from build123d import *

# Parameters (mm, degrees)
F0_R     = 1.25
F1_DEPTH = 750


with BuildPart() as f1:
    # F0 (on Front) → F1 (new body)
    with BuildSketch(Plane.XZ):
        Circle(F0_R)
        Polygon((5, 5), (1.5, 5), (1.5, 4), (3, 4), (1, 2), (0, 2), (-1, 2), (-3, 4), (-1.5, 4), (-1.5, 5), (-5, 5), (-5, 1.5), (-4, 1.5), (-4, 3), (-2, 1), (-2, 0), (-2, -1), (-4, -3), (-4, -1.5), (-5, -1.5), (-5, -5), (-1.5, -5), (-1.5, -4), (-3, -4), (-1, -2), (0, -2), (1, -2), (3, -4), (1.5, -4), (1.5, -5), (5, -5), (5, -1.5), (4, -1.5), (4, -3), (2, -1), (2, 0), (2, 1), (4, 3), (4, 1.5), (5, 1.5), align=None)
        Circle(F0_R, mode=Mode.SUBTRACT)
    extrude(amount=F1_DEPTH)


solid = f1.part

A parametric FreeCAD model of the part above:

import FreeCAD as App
import Part
import Sketcher

V = App.Vector
Q = App.Units.Quantity

doc = App.newDocument("Part")
body = doc.addObject("PartDesign::Body", "Body")

# Sketch on XZ plane
sketch1 = body.newObject("Sketcher::SketchObject", "Sketch")
sketch1.AttachmentSupport = (doc.getObject("XZ_Plane"), [""])
sketch1.MapMode = "FlatFace"
sketch1.addGeometry(Part.LineSegment(V(5, 5, 0), V(1.5, 5, 0)), False)
sketch1.addGeometry(Part.LineSegment(V(1.5, 5, 0), V(1.5, 4, 0)), False)
sketch1.addGeometry(Part.LineSegment(V(1.5, 4, 0), V(3, 4, 0)), False)
sketch1.addGeometry(Part.LineSegment(V(3, 4, 0), V(1, 2, 0)), False)
sketch1.addGeometry(Part.LineSegment(V(1, 2, 0), V(-1, 2, 0)), False)
sketch1.addGeometry(Part.LineSegment(V(-1, 2, 0), V(-3, 4, 0)), False)
sketch1.addGeometry(Part.LineSegment(V(-3, 4, 0), V(-1.5, 4, 0)), False)
sketch1.addGeometry(Part.LineSegment(V(-1.5, 4, 0), V(-1.5, 5, 0)), False)
sketch1.addGeometry(Part.LineSegment(V(-1.5, 5, 0), V(-5, 5, 0)), False)
sketch1.addGeometry(Part.LineSegment(V(-5, 5, 0), V(-5, 1.5, 0)), False)
sketch1.addGeometry(Part.LineSegment(V(-5, 1.5, 0), V(-4, 1.5, 0)), False)
sketch1.addGeometry(Part.LineSegment(V(-4, 1.5, 0), V(-4, 3, 0)), False)
sketch1.addGeometry(Part.LineSegment(V(-4, 3, 0), V(-2, 1, 0)), False)
sketch1.addGeometry(Part.LineSegment(V(-2, 1, 0), V(-2, -1, 0)), False)
sketch1.addGeometry(Part.LineSegment(V(-2, -1, 0), V(-4, -3, 0)), False)
sketch1.addGeometry(Part.LineSegment(V(-4, -3, 0), V(-4, -1.5, 0)), False)
sketch1.addGeometry(Part.LineSegment(V(-4, -1.5, 0), V(-5, -1.5, 0)), False)
sketch1.addGeometry(Part.LineSegment(V(-5, -1.5, 0), V(-5, -5, 0)), False)
sketch1.addGeometry(Part.LineSegment(V(-5, -5, 0), V(-1.5, -5, 0)), False)
sketch1.addGeometry(Part.LineSegment(V(-1.5, -5, 0), V(-1.5, -4, 0)), False)
sketch1.addGeometry(Part.LineSegment(V(-1.5, -4, 0), V(-3, -4, 0)), False)
sketch1.addGeometry(Part.LineSegment(V(-3, -4, 0), V(-1, -2, 0)), False)
sketch1.addGeometry(Part.LineSegment(V(-1, -2, 0), V(1, -2, 0)), False)
sketch1.addGeometry(Part.LineSegment(V(1, -2, 0), V(3, -4, 0)), False)
sketch1.addGeometry(Part.LineSegment(V(3, -4, 0), V(1.5, -4, 0)), False)
sketch1.addGeometry(Part.LineSegment(V(1.5, -4, 0), V(1.5, -5, 0)), False)
sketch1.addGeometry(Part.LineSegment(V(1.5, -5, 0), V(5, -5, 0)), False)
sketch1.addGeometry(Part.LineSegment(V(5, -5, 0), V(5, -1.5, 0)), False)
sketch1.addGeometry(Part.LineSegment(V(5, -1.5, 0), V(4, -1.5, 0)), False)
sketch1.addGeometry(Part.LineSegment(V(4, -1.5, 0), V(4, -3, 0)), False)
sketch1.addGeometry(Part.LineSegment(V(4, -3, 0), V(2, -1, 0)), False)
sketch1.addGeometry(Part.LineSegment(V(2, -1, 0), V(2, 1, 0)), False)
sketch1.addGeometry(Part.LineSegment(V(2, 1, 0), V(4, 3, 0)), False)
sketch1.addGeometry(Part.LineSegment(V(4, 3, 0), V(4, 1.5, 0)), False)
sketch1.addGeometry(Part.LineSegment(V(4, 1.5, 0), V(5, 1.5, 0)), False)
sketch1.addGeometry(Part.LineSegment(V(5, 1.5, 0), V(5, 5, 0)), False)
sketch1.addGeometry(Part.Circle(V(0, 0, 0), V(0, 0, 1), 1.2), False)
sketch1.addConstraint(Sketcher.Constraint("Coincident", 0, 2, 1, 1))
sketch1.addConstraint(Sketcher.Constraint("Coincident", 1, 2, 2, 1))
sketch1.addConstraint(Sketcher.Constraint("Coincident", 2, 2, 3, 1))
sketch1.addConstraint(Sketcher.Constraint("Coincident", 3, 2, 4, 1))
sketch1.addConstraint(Sketcher.Constraint("Coincident", 4, 2, 5, 1))
sketch1.addConstraint(Sketcher.Constraint("Coincident", 5, 2, 6, 1))
sketch1.addConstraint(Sketcher.Constraint("Coincident", 6, 2, 7, 1))
sketch1.addConstraint(Sketcher.Constraint("Coincident", 7, 2, 8, 1))
sketch1.addConstraint(Sketcher.Constraint("Coincident", 8, 2, 9, 1))
sketch1.addConstraint(Sketcher.Constraint("Coincident", 9, 2, 10, 1))
sketch1.addConstraint(Sketcher.Constraint("Coincident", 10, 2, 11, 1))
sketch1.addConstraint(Sketcher.Constraint("Coincident", 11, 2, 12, 1))
sketch1.addConstraint(Sketcher.Constraint("Coincident", 12, 2, 13, 1))
sketch1.addConstraint(Sketcher.Constraint("Coincident", 13, 2, 14, 1))
sketch1.addConstraint(Sketcher.Constraint("Coincident", 14, 2, 15, 1))
sketch1.addConstraint(Sketcher.Constraint("Coincident", 15, 2, 16, 1))
sketch1.addConstraint(Sketcher.Constraint("Coincident", 16, 2, 17, 1))
sketch1.addConstraint(Sketcher.Constraint("Coincident", 17, 2, 18, 1))
sketch1.addConstraint(Sketcher.Constraint("Coincident", 18, 2, 19, 1))
sketch1.addConstraint(Sketcher.Constraint("Coincident", 19, 2, 20, 1))
sketch1.addConstraint(Sketcher.Constraint("Coincident", 20, 2, 21, 1))
sketch1.addConstraint(Sketcher.Constraint("Coincident", 21, 2, 22, 1))
sketch1.addConstraint(Sketcher.Constraint("Coincident", 22, 2, 23, 1))
sketch1.addConstraint(Sketcher.Constraint("Coincident", 23, 2, 24, 1))
sketch1.addConstraint(Sketcher.Constraint("Coincident", 24, 2, 25, 1))
sketch1.addConstraint(Sketcher.Constraint("Coincident", 25, 2, 26, 1))
sketch1.addConstraint(Sketcher.Constraint("Coincident", 26, 2, 27, 1))
sketch1.addConstraint(Sketcher.Constraint("Coincident", 27, 2, 28, 1))
sketch1.addConstraint(Sketcher.Constraint("Coincident", 28, 2, 29, 1))
sketch1.addConstraint(Sketcher.Constraint("Coincident", 29, 2, 30, 1))
sketch1.addConstraint(Sketcher.Constraint("Coincident", 30, 2, 31, 1))
sketch1.addConstraint(Sketcher.Constraint("Coincident", 31, 2, 32, 1))
sketch1.addConstraint(Sketcher.Constraint("Coincident", 32, 2, 33, 1))
sketch1.addConstraint(Sketcher.Constraint("Coincident", 33, 2, 34, 1))
sketch1.addConstraint(Sketcher.Constraint("Coincident", 34, 2, 35, 1))
sketch1.addConstraint(Sketcher.Constraint("Coincident", 35, 2, 0, 1))
sketch1.addConstraint(Sketcher.Constraint("Horizontal", 0))
sketch1.addConstraint(Sketcher.Constraint("Vertical", 1))
sketch1.addConstraint(Sketcher.Constraint("Horizontal", 2))
sketch1.addConstraint(Sketcher.Constraint("Horizontal", 4))
sketch1.addConstraint(Sketcher.Constraint("Horizontal", 6))
sketch1.addConstraint(Sketcher.Constraint("Vertical", 7))
sketch1.addConstraint(Sketcher.Constraint("Horizontal", 8))
sketch1.addConstraint(Sketcher.Constraint("Vertical", 9))
sketch1.addConstraint(Sketcher.Constraint("Horizontal", 10))
sketch1.addConstraint(Sketcher.Constraint("Vertical", 11))
sketch1.addConstraint(Sketcher.Constraint("Vertical", 13))
sketch1.addConstraint(Sketcher.Constraint("Vertical", 15))
sketch1.addConstraint(Sketcher.Constraint("Horizontal", 16))
sketch1.addConstraint(Sketcher.Constraint("Vertical", 17))
sketch1.addConstraint(Sketcher.Constraint("Horizontal", 18))
sketch1.addConstraint(Sketcher.Constraint("Vertical", 19))
sketch1.addConstraint(Sketcher.Constraint("Horizontal", 20))
sketch1.addConstraint(Sketcher.Constraint("Horizontal", 22))
sketch1.addConstraint(Sketcher.Constraint("Horizontal", 24))
sketch1.addConstraint(Sketcher.Constraint("Vertical", 25))
sketch1.addConstraint(Sketcher.Constraint("Horizontal", 26))
sketch1.addConstraint(Sketcher.Constraint("Vertical", 27))
sketch1.addConstraint(Sketcher.Constraint("Horizontal", 28))
sketch1.addConstraint(Sketcher.Constraint("Vertical", 29))
sketch1.addConstraint(Sketcher.Constraint("Vertical", 31))
sketch1.addConstraint(Sketcher.Constraint("Vertical", 33))
sketch1.addConstraint(Sketcher.Constraint("Horizontal", 34))
sketch1.addConstraint(Sketcher.Constraint("Vertical", 35))
sketch1.addConstraint(Sketcher.Constraint("Coincident", 36, 3, -1, 1))
sketch1.addConstraint(Sketcher.Constraint("Symmetric", 0, 2, 18, 2, -1, 1))
sketch1.addConstraint(Sketcher.Constraint("Symmetric", 2, 2, 20, 2, -1, 1))
sketch1.addConstraint(Sketcher.Constraint("Symmetric", 3, 2, 21, 2, -1, 1))
sketch1.addConstraint(Sketcher.Constraint("Symmetric", 5, 2, 23, 2, -1, 1))
sketch1.addConstraint(Sketcher.Constraint("Symmetric", 7, 2, 25, 2, -1, 1))
sketch1.addConstraint(Sketcher.Constraint("Symmetric", 9, 2, 27, 2, -1, 1))
sketch1.addConstraint(Sketcher.Constraint("Symmetric", 11, 2, 29, 2, -1, 1))
sketch1.addConstraint(Sketcher.Constraint("Symmetric", 12, 2, 30, 2, -1, 1))
sketch1.addConstraint(Sketcher.Constraint("Symmetric", 14, 2, 32, 2, -1, 1))
sketch1.addConstraint(Sketcher.Constraint("Symmetric", 16, 2, 34, 2, -1, 1))
sketch1.addConstraint(Sketcher.Constraint("Symmetric", 2, 2, 5, 2, -2))
sketch1.addConstraint(Sketcher.Constraint("Symmetric", 0, 2, 7, 2, -2))
sketch1.addConstraint(Sketcher.Constraint("Symmetric", 16, 2, 27, 2, -2))
sketch1.addConstraint(Sketcher.Constraint("Symmetric", 14, 2, 29, 2, -2))
sketch1.addConstraint(Sketcher.Constraint("Perpendicular", 3, 5))
sketch1.addConstraint(Sketcher.Constraint("Parallel", 5, 12))
sketch1.addConstraint(Sketcher.Constraint("Perpendicular", 12, 14))
sketch1.addConstraint(Sketcher.Constraint("Perpendicular", 21, 23))
sketch1.addConstraint(Sketcher.Constraint("Perpendicular", 30, 32))
sketch1.addConstraint(Sketcher.Constraint("Horizontal", 13, 2, 30, 2))
sketch1.addConstraint(Sketcher.Constraint("Equal", 34, 1))
sketch1.addConstraint(Sketcher.Constraint("Equal", 26, 9))
sketch1.addConstraint(Sketcher.Constraint("Equal", 24, 11))
sketch1.addConstraint(Sketcher.Constraint("Equal", 22, 13))
sketch1.addConstraint(Sketcher.Constraint("Equal", 5, 12))
sketch1.addConstraint(Sketcher.Constraint("Diameter", 36, Q("2.5 mm")))
sketch1.addConstraint(Sketcher.Constraint("DistanceX", 4, 2, 4, 1, Q("2 mm")))
sketch1.addConstraint(Sketcher.Constraint("DistanceX", 10, 1, 10, 2, Q("1 mm")))
sketch1.addConstraint(Sketcher.Constraint("DistanceX", 0, 2, 0, 1, Q("3.5 mm")))
sketch1.addConstraint(Sketcher.Constraint("DistanceX", 2, 1, 2, 2, Q("1.5 mm")))
sketch1.addConstraint(Sketcher.Constraint("DistanceY", -1, 1, 0, 2, Q("5 mm")))
pad1 = body.newObject("PartDesign::Pad", "Pad")
pad1.Profile = sketch1
pad1.Length = 750

doc.recompute()
